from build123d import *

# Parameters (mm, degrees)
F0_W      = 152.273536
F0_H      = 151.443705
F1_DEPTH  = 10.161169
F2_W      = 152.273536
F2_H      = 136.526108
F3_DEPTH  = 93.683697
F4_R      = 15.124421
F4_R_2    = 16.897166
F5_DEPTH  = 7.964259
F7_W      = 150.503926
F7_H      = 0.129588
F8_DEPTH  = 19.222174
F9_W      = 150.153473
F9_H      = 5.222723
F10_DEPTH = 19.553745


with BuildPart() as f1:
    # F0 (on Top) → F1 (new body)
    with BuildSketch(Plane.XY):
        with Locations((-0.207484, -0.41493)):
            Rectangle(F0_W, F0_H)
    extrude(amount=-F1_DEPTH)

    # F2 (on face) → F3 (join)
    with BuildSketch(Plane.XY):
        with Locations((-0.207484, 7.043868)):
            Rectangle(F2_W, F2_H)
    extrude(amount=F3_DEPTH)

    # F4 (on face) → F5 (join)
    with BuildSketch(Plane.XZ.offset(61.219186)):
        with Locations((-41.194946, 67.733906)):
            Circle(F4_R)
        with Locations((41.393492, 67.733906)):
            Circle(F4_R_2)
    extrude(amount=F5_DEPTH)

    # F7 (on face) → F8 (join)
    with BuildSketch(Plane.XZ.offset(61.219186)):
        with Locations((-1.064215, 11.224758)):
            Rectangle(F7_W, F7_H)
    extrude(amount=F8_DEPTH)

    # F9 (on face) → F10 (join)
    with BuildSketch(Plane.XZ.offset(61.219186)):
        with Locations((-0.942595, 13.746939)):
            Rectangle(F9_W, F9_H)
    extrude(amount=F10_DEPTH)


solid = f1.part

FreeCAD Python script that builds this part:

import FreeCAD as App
import Part
import Sketcher

V = App.Vector
Q = App.Units.Quantity

doc = App.newDocument("Part")
params = doc.addObject("Spreadsheet::Sheet", "Params")
for row, (alias, value) in enumerate([
    ("pad1_length", "10.161169 mm"),
    ("pad2_length", "93.683697 mm"),
    ("pad3_length", "7.964259 mm"),
    ("pad4_length", "19.222174 mm"),
    ("pad5_length", "19.553745 mm"),
], start=1):
    params.set(f"A{row}", alias)
    params.set(f"B{row}", "=" + value)
    params.setAlias(f"B{row}", alias)

body = doc.addObject("PartDesign::Body", "Body")

# Sketch on XY plane
sketch1 = body.newObject("Sketcher::SketchObject", "Sketch")
sketch1.AttachmentSupport = (doc.getObject("XY_Plane"), [""])
sketch1.MapMode = "FlatFace"
sketch1.addGeometry([
    Part.LineSegment(V(-76, 75, 0), V(-76, -76, 0)),
    Part.LineSegment(V(-76, -76, 0), V(76, -76, 0)),
    Part.LineSegment(V(76, -76, 0), V(76, 75, 0)),
    Part.LineSegment(V(76, 75, 0), V(-76, 75, 0)),
], False)
sketch1.addConstraint([
    Sketcher.Constraint("Coincident", 0, 2, 1, 1),
    Sketcher.Constraint("Coincident", 1, 2, 2, 1),
    Sketcher.Constraint("Coincident", 2, 2, 3, 1),
    Sketcher.Constraint("Coincident", 3, 2, 0, 1),
    Sketcher.Constraint("Vertical", 0),
    Sketcher.Constraint("Horizontal", 1),
    Sketcher.Constraint("Vertical", 2),
    Sketcher.Constraint("Horizontal", 3),
    Sketcher.Constraint("DistanceX", 1, 1, 1, 2, Q("152.273536 mm")),
    Sketcher.Constraint("DistanceY", 0, 2, 0, 1, Q("151.443705 mm")),
    Sketcher.Constraint("DistanceX", 0, 2, -1, 1, Q("76.344252 mm")),
    Sketcher.Constraint("DistanceY", 0, 2, -1, 1, Q("76.136782 mm")),
])
pad1 = body.newObject("PartDesign::Pad", "Pad")
pad1.Profile = sketch1
pad1.setExpression("Length", "Params.pad1_length")
pad1.Reversed = True

# Sketch on XY plane
sketch2 = body.newObject("Sketcher::SketchObject", "Sketch001")
sketch2.AttachmentSupport = (doc.getObject("XY_Plane"), [""])
sketch2.MapMode = "FlatFace"
sketch2.addGeometry([
    Part.LineSegment(V(-76, 75, 0), V(-76, -61, 0)),
    Part.LineSegment(V(-76, -61, 0), V(76, -61, 0)),
    Part.LineSegment(V(76, -61, 0), V(76, 75, 0)),
    Part.LineSegment(V(76, 75, 0), V(-76, 75, 0)),
], False)
sketch2.addConstraint([
    Sketcher.Constraint("Coincident", 0, 2, 1, 1),
    Sketcher.Constraint("Coincident", 1, 2, 2, 1),
    Sketcher.Constraint("Coincident", 2, 2, 3, 1),
    Sketcher.Constraint("Coincident", 3, 2, 0, 1),
    Sketcher.Constraint("Vertical", 0),
    Sketcher.Constraint("Horizontal", 1),
    Sketcher.Constraint("Vertical", 2),
    Sketcher.Constraint("Horizontal", 3),
    Sketcher.Constraint("DistanceY", 0, 2, 0, 1, Q("136.526108 mm")),
    Sketcher.Constraint("DistanceX", 1, 1, 1, 2, Q("152.273536 mm")),
    Sketcher.Constraint("DistanceX", 0, 2, -1, 1, Q("76.344252 mm")),
    Sketcher.Constraint("DistanceY", -1, 1, 2, 2, Q("75.306922 mm")),
])
pad2 = body.newObject("PartDesign::Pad", "Pad001")
pad2.Profile = sketch2
pad2.setExpression("Length", "Params.pad2_length")

# Sketch on XZ plane
sketch3 = body.newObject("Sketcher::SketchObject", "Sketch002")
sketch3.AttachmentSupport = (doc.getObject("XZ_Plane"), [""])
sketch3.MapMode = "FlatFace"
sketch3.AttachmentOffset = App.Placement(V(0, 0, 61.219186), App.Rotation())
sketch3.addGeometry([
    Part.Circle(V(-41, 68, 0), V(0, 0, 1), 15),
    Part.Circle(V(41, 68, 0), V(0, 0, 1), 17),
], False)
sketch3.addConstraint([
    Sketcher.Constraint("Horizontal", 0, 3, 1, 3),
    Sketcher.Constraint("Diameter", 0, Q("30.248842 mm")),
    Sketcher.Constraint("Diameter", 1, Q("33.794332 mm")),
    Sketcher.Constraint("DistanceX", 0, 3, -1, 1, Q("41.194946 mm")),
    Sketcher.Constraint("DistanceY", -1, 1, 0, 3, Q("67.733906 mm")),
    Sketcher.Constraint("DistanceX", -1, 1, 1, 3, Q("41.393492 mm")),
])
pad3 = body.newObject("PartDesign::Pad", "Pad002")
pad3.Profile = sketch3
pad3.setExpression("Length", "Params.pad3_length")

# Sketch on XZ plane
sketch4 = body.newObject("Sketcher::SketchObject", "Sketch003")
sketch4.AttachmentSupport = (doc.getObject("XZ_Plane"), [""])
sketch4.MapMode = "FlatFace"
sketch4.AttachmentOffset = App.Placement(V(0, 0, 61.219186), App.Rotation())
sketch4.addGeometry([
    Part.LineSegment(V(-76.32, 11.29, 0), V(-76.32, 11.16, 0)),
    Part.LineSegment(V(-76.32, 11.16, 0), V(74.19, 11.16, 0)),
    Part.LineSegment(V(74.19, 11.16, 0), V(74.19, 11.29, 0)),
    Part.LineSegment(V(74.19, 11.29, 0), V(-76.32, 11.29, 0)),
], False)
sketch4.addConstraint([
    Sketcher.Constraint("Coincident", 0, 2, 1, 1),
    Sketcher.Constraint("Coincident", 1, 2, 2, 1),
    Sketcher.Constraint("Coincident", 2, 2, 3, 1),
    Sketcher.Constraint("Coincident", 3, 2, 0, 1),
    Sketcher.Constraint("Vertical", 0),
    Sketcher.Constraint("Horizontal", 1),
    Sketcher.Constraint("Vertical", 2),
    Sketcher.Constraint("Horizontal", 3),
    Sketcher.Constraint("DistanceY", 0, 2, 0, 1, Q("0.129588 mm")),
    Sketcher.Constraint("DistanceX", 1, 1, 1, 2, Q("150.503926 mm")),
    Sketcher.Constraint("DistanceX", -1, 1, 1, 2, Q("74.187748 mm")),
    Sketcher.Constraint("DistanceY", -1, 1, 0, 2, Q("11.159964 mm")),
])
pad4 = body.newObject("PartDesign::Pad", "Pad003")
pad4.Profile = sketch4
pad4.setExpression("Length", "Params.pad4_length")

# Sketch on XZ plane
sketch5 = body.newObject("Sketcher::SketchObject", "Sketch004")
sketch5.AttachmentSupport = (doc.getObject("XZ_Plane"), [""])
sketch5.MapMode = "FlatFace"
sketch5.AttachmentOffset = App.Placement(V(0, 0, 61.219186), App.Rotation())
sketch5.addGeometry([
    Part.LineSegment(V(-76, 16, 0), V(-76, 11, 0)),
    Part.LineSegment(V(-76, 11, 0), V(74, 11, 0)),
    Part.LineSegment(V(74, 11, 0), V(74, 16, 0)),
    Part.LineSegment(V(74, 16, 0), V(-76, 16, 0)),
], False)
sketch5.addConstraint([
    Sketcher.Constraint("Coincident", 0, 2, 1, 1),
    Sketcher.Constraint("Coincident", 1, 2, 2, 1),
    Sketcher.Constraint("Coincident", 2, 2, 3, 1),
    Sketcher.Constraint("Coincident", 3, 2, 0, 1),
    Sketcher.Constraint("Vertical", 0),
    Sketcher.Constraint("Horizontal", 1),
    Sketcher.Constraint("Vertical", 2),
    Sketcher.Constraint("Horizontal", 3),
    Sketcher.Constraint("DistanceY", -1, 1, 2, 2, Q("16.3583 mm")),
    Sketcher.Constraint("DistanceX", 1, 1, 1, 2, Q("150.153473 mm")),
    Sketcher.Constraint("DistanceY", 0, 2, 0, 1, Q("5.222723 mm")),
    Sketcher.Constraint("DistanceX", 0, 2, -1, 1, Q("76.019332 mm")),
])
pad5 = body.newObject("PartDesign::Pad", "Pad004")
pad5.Profile = sketch5
pad5.setExpression("Length", "Params.pad5_length")

doc.recompute()
